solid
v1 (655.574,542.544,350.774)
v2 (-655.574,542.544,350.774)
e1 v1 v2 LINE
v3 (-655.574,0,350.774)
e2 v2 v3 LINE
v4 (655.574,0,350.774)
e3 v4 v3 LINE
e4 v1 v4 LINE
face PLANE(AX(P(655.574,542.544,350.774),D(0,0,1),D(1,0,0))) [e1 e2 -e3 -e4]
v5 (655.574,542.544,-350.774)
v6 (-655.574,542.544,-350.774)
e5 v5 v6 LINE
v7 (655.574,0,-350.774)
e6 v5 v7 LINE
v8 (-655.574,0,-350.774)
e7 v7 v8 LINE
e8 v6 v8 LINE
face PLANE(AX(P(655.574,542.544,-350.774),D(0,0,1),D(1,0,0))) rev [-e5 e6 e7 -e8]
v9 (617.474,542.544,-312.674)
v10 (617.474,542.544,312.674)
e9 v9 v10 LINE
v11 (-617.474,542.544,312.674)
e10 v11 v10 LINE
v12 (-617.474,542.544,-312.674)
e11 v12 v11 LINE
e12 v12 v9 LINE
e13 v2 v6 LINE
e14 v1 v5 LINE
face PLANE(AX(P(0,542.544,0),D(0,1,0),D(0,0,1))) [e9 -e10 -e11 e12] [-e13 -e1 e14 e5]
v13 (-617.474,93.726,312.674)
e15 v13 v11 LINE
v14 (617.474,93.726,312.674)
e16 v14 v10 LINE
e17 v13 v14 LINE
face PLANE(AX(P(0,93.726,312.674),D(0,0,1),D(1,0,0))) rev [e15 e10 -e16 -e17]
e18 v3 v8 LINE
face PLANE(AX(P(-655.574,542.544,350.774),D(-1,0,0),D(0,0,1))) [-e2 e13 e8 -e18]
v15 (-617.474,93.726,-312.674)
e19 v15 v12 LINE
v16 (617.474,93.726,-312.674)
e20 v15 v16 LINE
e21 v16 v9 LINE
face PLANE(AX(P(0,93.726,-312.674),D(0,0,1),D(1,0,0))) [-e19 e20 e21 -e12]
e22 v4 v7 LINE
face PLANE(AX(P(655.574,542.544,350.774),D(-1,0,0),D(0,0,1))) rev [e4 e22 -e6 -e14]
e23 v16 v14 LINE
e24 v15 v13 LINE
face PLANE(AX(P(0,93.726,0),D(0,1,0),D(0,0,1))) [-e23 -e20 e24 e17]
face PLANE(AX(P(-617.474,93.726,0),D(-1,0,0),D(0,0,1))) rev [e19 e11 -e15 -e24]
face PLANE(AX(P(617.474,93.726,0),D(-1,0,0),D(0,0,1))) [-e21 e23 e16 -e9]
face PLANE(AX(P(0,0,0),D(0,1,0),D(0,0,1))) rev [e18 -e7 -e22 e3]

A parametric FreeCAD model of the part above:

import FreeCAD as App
import Part
import Sketcher

V = App.Vector
Q = App.Units.Quantity


def add_polygon(sketch, points):
    """Adds a closed chain of lines whose ends are joined by coincident constraints."""
    first, n = sketch.GeometryCount, len(points)
    for a, b in zip(points, points[1:] + points[:1]):
        sketch.addGeometry(Part.LineSegment(App.Vector(*a, 0), App.Vector(*b, 0)), False)
    for i in range(n):
        sketch.addConstraint(Sketcher.Constraint("Coincident", first + i, 2, first + (i + 1) % n, 1))

doc = App.newDocument("Part")
body = doc.addObject("PartDesign::Body", "Body")

# Sketch on XZ plane
sketch1 = body.newObject("Sketcher::SketchObject", "Sketch")
sketch1.AttachmentSupport = (doc.getObject("XZ_Plane"), [""])
sketch1.MapMode = "FlatFace"
add_polygon(sketch1, [(-656, -351), (-656, 351), (656, 351), (656, -351)])  # lines 0-3
sketch1.addConstraint([
    Sketcher.Constraint("Vertical", 0),
    Sketcher.Constraint("Horizontal", 1),
    Sketcher.Constraint("Vertical", 2),
    Sketcher.Constraint("Horizontal", 3),
    Sketcher.Constraint("Symmetric", 0, 2, 2, 2, -1, 1),
    Sketcher.Constraint("DistanceX", 1, 1, 1, 2, Q("51.62 in")),
    Sketcher.Constraint("DistanceY", 0, 1, 0, 2, Q("27.62 in")),
])
pad1 = body.newObject("PartDesign::Pad", "Pad")
pad1.Profile = sketch1
pad1.Length = Q("21.36 in")
pad1.Reversed = True

# Sketch on XZ plane
sketch2 = body.newObject("Sketcher::SketchObject", "Sketch001")
sketch2.AttachmentSupport = (doc.getObject("XZ_Plane"), [""])
sketch2.MapMode = "FlatFace"
sketch2.AttachmentOffset = App.Placement(V(0, 0, -21.36 * 25.4), App.Rotation())
add_polygon(sketch2, [(-617, -313), (-617, 313), (617, 313), (617, -313)])  # lines 0-3
sketch2.addConstraint([
    Sketcher.Constraint("Vertical", 0),
    Sketcher.Constraint("Horizontal", 1),
    Sketcher.Constraint("Vertical", 2),
    Sketcher.Constraint("Horizontal", 3),
    Sketcher.Constraint("Symmetric", 0, 2, 2, 2, -1, 1),
    Sketcher.Constraint("DistanceX", 1, 1, 1, 2, Q("48.62 in")),
    Sketcher.Constraint("DistanceY", 0, 1, 0, 2, Q("24.62 in")),
])
pocket1 = body.newObject("PartDesign::Pocket", "Pocket")
pocket1.Profile = sketch2
pocket1.Length = Q("17.67 in")
pocket1.Reversed = True

doc.recompute()
